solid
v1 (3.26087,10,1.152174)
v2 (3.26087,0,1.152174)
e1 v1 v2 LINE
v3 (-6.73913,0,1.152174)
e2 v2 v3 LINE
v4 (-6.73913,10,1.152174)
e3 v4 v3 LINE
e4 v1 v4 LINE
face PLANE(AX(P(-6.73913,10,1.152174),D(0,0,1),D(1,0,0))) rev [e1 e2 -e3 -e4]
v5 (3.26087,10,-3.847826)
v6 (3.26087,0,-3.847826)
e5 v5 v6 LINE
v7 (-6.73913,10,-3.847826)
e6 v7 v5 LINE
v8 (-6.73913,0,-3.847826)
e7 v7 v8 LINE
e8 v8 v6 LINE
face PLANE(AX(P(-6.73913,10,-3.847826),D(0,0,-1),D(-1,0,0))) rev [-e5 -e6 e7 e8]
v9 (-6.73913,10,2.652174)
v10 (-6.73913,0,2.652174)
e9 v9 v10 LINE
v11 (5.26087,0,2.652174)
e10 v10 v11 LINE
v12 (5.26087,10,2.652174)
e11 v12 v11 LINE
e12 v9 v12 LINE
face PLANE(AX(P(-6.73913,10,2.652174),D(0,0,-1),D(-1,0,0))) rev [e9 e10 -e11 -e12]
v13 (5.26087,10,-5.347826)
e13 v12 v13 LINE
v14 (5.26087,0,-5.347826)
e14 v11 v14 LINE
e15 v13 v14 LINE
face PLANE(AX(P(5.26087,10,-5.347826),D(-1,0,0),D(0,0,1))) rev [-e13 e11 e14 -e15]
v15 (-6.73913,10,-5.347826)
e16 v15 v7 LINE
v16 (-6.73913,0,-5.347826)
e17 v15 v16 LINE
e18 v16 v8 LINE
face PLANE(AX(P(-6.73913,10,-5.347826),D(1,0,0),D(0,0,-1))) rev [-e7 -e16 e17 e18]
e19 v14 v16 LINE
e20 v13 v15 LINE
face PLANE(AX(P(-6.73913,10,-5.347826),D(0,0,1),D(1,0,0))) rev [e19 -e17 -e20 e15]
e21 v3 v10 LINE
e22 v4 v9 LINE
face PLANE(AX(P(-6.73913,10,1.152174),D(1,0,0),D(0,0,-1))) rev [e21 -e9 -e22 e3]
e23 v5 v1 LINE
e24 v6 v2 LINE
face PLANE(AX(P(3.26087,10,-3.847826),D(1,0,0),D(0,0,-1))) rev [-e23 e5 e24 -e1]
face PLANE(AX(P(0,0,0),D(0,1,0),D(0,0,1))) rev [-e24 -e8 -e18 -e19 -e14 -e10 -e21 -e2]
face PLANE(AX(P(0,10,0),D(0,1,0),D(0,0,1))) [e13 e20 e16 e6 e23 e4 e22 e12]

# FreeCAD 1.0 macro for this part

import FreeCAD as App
import Part
import Sketcher


def add_polygon(sketch, points):
    """Adds a closed chain of lines whose ends are joined by coincident constraints."""
    first, n = sketch.GeometryCount, len(points)
    for a, b in zip(points, points[1:] + points[:1]):
        sketch.addGeometry(Part.LineSegment(App.Vector(*a, 0), App.Vector(*b, 0)), False)
    for i in range(n):
        sketch.addConstraint(Sketcher.Constraint("Coincident", first + i, 2, first + (i + 1) % n, 1))

doc = App.newDocument("Part")
params = doc.addObject("Spreadsheet::Sheet", "Params")
for row, (alias, value) in enumerate([
    ("sketch1_width", "12 mm"),
    ("sketch1_width2", "10 mm"),
    ("sketch1_height", "8 mm"),
    ("sketch1_height2", "5 mm"),
    ("pad1_length", "10 mm"),
], start=1):
    params.set(f"A{row}", alias)
    params.set(f"B{row}", "=" + value)
    params.setAlias(f"B{row}", alias)

body = doc.addObject("PartDesign::Body", "Body")

# Sketch on XZ plane
sketch1 = doc.addObject("Sketcher::SketchObject", "Sketch")
body.addObject(sketch1)
sketch1.AttachmentSupport = (doc.XZ_Plane, [""])
sketch1.MapMode = "FlatFace"
add_polygon(sketch1, [(-6.7, 1.2), (-6.7, 2.7), (5.3, 2.7), (5.3, -5.3), (-6.7, -5.3), (-6.7, -3.8), (3.3, -3.8), (3.3, 1.2)])  # lines 0-7
sketch1.addConstraint([
    Sketcher.Constraint("Vertical", 0),
    Sketcher.Constraint("Horizontal", 1),
    Sketcher.Constraint("Vertical", 2),
    Sketcher.Constraint("Horizontal", 3),
    Sketcher.Constraint("Vertical", 4),
    Sketcher.Constraint("Horizontal", 5),
    Sketcher.Constraint("Vertical", 6),
    Sketcher.Constraint("Horizontal", 7),
    Sketcher.Constraint("Vertical", 0, 2, 3, 2),
    Sketcher.Constraint("Equal", 0, 4),
    Sketcher.Constraint("DistanceX", 1, 1, 1, 2, 12.0),
    Sketcher.Constraint("DistanceX", 5, 1, 5, 2, 10.0),
    Sketcher.Constraint("DistanceY", 2, 2, 2, 1, 8.0),
    Sketcher.Constraint("DistanceY", 6, 1, 6, 2, 5.0),
    Sketcher.Constraint("DistanceX", 0, 2, -1, 1, 6.73913),
    Sketcher.Constraint("DistanceY", -1, 1, 0, 2, 2.652174),
])
sketch1.setExpression("Constraints[18]", "Params.sketch1_width")
sketch1.setExpression("Constraints[19]", "Params.sketch1_width2")
sketch1.setExpression("Constraints[20]", "Params.sketch1_height")
sketch1.setExpression("Constraints[21]", "Params.sketch1_height2")
pad1 = doc.addObject("PartDesign::Pad", "Pad")
body.addObject(pad1)
pad1.Profile = sketch1
pad1.setExpression("Length", "Params.pad1_length")
pad1.Reversed = True

doc.recompute()
